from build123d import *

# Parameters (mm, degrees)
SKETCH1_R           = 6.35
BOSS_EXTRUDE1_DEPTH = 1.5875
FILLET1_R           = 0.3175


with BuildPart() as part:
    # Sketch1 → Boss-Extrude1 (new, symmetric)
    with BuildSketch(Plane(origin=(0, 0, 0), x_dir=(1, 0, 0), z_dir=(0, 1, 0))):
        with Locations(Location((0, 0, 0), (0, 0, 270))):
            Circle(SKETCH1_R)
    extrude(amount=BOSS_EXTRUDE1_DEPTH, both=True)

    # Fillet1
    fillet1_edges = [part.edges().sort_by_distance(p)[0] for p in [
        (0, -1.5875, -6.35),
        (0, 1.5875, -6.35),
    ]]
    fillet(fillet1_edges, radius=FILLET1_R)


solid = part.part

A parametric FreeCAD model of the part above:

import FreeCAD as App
import Part
import Sketcher

V = App.Vector
Q = App.Units.Quantity


def edges_at(feature, points):
    """Names of the edges that pass closest to the given points."""
    edges = feature.Shape.Edges
    near = lambda p: min(range(len(edges)), key=lambda i: edges[i].distToShape(Part.Vertex(*p))[0])
    return sorted({f"Edge{near(p) + 1}" for p in points})

doc = App.newDocument("Part")
body = doc.addObject("PartDesign::Body", "Body")

# Sketch on XZ plane
sketch1 = doc.addObject("Sketcher::SketchObject", "Sketch")
body.addObject(sketch1)
sketch1.AttachmentSupport = (doc.XZ_Plane, [""])
sketch1.MapMode = "FlatFace"
sketch1.addGeometry(Part.Circle(V(0, 0, 0), V(0, 0, 1), 6), False)
sketch1.addConstraint([
    Sketcher.Constraint("Coincident", 0, 3, -1, 1),
    Sketcher.Constraint("Diameter", 0, Q("0.5 in")),
])
pad1 = doc.addObject("PartDesign::Pad", "Pad")
body.addObject(pad1)
pad1.Profile = sketch1
pad1.Length = Q("0.125 in")
pad1.Midplane = True
doc.recompute()

fillet = doc.addObject("PartDesign::Fillet", "Fillet")
body.addObject(fillet)
fillet.Base = (pad1, edges_at(pad1, [(0, -1.587, -6.35), (0, 1.587, -6.35)]))
fillet.Radius = Q("0.0125 in")

doc.recompute()
